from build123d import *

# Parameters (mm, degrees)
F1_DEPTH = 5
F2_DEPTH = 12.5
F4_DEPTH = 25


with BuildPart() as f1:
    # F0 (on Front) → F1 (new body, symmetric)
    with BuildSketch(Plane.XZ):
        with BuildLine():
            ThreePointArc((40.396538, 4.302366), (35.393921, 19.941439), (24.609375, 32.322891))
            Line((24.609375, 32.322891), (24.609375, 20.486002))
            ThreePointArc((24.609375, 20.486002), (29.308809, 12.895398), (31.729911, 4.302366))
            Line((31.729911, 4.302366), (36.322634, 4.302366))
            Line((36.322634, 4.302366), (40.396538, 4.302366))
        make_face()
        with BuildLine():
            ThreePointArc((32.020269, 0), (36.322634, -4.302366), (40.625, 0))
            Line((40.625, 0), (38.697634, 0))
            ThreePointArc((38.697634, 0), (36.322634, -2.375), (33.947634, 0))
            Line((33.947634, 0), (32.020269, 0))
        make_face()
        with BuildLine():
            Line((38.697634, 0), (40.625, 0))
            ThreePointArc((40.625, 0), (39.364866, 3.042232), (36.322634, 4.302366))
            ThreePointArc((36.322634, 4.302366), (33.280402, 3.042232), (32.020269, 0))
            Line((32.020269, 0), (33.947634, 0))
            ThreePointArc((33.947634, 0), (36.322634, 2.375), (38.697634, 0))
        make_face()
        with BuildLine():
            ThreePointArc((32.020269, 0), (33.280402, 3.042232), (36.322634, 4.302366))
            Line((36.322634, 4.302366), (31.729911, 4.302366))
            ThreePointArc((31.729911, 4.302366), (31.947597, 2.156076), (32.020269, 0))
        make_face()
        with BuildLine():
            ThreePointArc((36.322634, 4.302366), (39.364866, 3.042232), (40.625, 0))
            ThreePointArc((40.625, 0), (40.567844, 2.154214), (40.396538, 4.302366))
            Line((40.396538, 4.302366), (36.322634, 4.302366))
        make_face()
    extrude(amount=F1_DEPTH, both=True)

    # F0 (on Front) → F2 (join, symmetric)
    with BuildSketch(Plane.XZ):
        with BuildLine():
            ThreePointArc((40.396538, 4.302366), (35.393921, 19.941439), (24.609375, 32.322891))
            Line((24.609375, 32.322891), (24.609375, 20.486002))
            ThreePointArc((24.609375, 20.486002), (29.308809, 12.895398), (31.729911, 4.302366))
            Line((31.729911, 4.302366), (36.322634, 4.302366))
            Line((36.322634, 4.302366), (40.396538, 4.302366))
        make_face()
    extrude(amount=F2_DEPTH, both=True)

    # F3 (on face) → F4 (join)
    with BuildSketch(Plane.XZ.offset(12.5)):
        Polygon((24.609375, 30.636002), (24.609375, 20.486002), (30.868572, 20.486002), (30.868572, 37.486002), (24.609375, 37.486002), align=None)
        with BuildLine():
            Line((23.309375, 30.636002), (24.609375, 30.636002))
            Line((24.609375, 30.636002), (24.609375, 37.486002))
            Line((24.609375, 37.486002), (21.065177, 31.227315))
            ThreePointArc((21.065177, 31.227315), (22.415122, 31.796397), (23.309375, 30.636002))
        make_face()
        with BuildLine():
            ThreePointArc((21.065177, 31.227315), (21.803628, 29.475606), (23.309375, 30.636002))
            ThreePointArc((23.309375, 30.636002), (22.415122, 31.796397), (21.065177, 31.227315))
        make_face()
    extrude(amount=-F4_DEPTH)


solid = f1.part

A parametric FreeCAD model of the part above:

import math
import FreeCAD as App
import Part
import Sketcher
Q = App.Units.Quantity

doc = App.newDocument("Part")
body = doc.addObject("PartDesign::Body", "Body")

# Sketch on XZ plane
sketch1 = body.newObject("Sketcher::SketchObject", "Sketch")
sketch1.AttachmentSupport = (doc.getObject("XZ_Plane"), [""])
sketch1.MapMode = "FlatFace"
sketch1.addGeometry(Part.ArcOfCircle(Part.Circle(App.Vector(0.000001, 0, 0), App.Vector(0, 0, 1), 40.624999), math.radians(6.079275), math.radians(52.715785)), False)
sketch1.addGeometry(Part.LineSegment(App.Vector(24.609375, 32.322891, 0), App.Vector(24.609375, 20.486002, 0)), False)
sketch1.addGeometry(Part.ArcOfCircle(Part.Circle(App.Vector(-0.000013, -0.000006, 0), App.Vector(0, 0, 1), 32.020283), math.radians(7.721842), math.radians(39.775582)), False)
sketch1.addGeometry(Part.ArcOfCircle(Part.Circle(App.Vector(0.000012, -0.000002, 0), App.Vector(0, 0, 1), 32.020257), math.radians(0.000003), math.radians(7.721841)), False)
sketch1.addGeometry(Part.ArcOfCircle(Part.Circle(App.Vector(36.322634, 0, 0), App.Vector(0, 0, 1), 4.302365), math.radians(179.999993), math.radians(360.000007)), False)
sketch1.addGeometry(Part.ArcOfCircle(Part.Circle(App.Vector(-0.000223, -0.000011, 0), App.Vector(0, 0, 1), 40.625223), math.radians(0.000015), math.radians(6.079257)), False)
sketch1.addGeometry(Part.Circle(App.Vector(36.322634, 0, 0), App.Vector(0, 0, 1), 2.375), False)
sketch1.addConstraint(Sketcher.Constraint("Coincident", 0, 2, 1, 1))
sketch1.addConstraint(Sketcher.Constraint("Coincident", 1, 2, 2, 2))
sketch1.addConstraint(Sketcher.Constraint("Coincident", 2, 1, 3, 2))
sketch1.addConstraint(Sketcher.Constraint("Coincident", 3, 1, 4, 1))
sketch1.addConstraint(Sketcher.Constraint("Coincident", 4, 2, 5, 1))
sketch1.addConstraint(Sketcher.Constraint("Coincident", 5, 2, 0, 1))
sketch1.addConstraint(Sketcher.Constraint("Vertical", 1))
sketch1.addConstraint(Sketcher.Constraint("Coincident", 0, 3, -1, 1))
sketch1.addConstraint(Sketcher.Constraint("Coincident", 6, 3, 4, 3))
sketch1.addConstraint(Sketcher.Constraint("PointOnObject", 3, 3, -1))
sketch1.addConstraint(Sketcher.Constraint("PointOnObject", 4, 3, -1))
sketch1.addConstraint(Sketcher.Constraint("PointOnObject", 3, 1, -1))
sketch1.addConstraint(Sketcher.Constraint("PointOnObject", 4, 2, -1))
sketch1.addConstraint(Sketcher.Constraint("Diameter", 6, Q("4.75 mm")))
sketch1.addConstraint(Sketcher.Constraint("Radius", 0, Q("40.624999 mm")))
sketch1.addConstraint(Sketcher.Constraint("DistanceY", -1, 1, 1, 2, Q("20.486002 mm")))
sketch1.addConstraint(Sketcher.Constraint("DistanceX", -1, 1, 4, 2, Q("40.625 mm")))
sketch1.addConstraint(Sketcher.Constraint("Radius", 2, Q("32.020283 mm")))
sketch1.addConstraint(Sketcher.Constraint("Radius", 3, Q("32.020257 mm")))
sketch1.addConstraint(Sketcher.Constraint("Radius", 4, Q("4.302365 mm")))
sketch1.addConstraint(Sketcher.Constraint("Radius", 5, Q("40.625223 mm")))
sketch1.addConstraint(Sketcher.Constraint("DistanceY", 1, 2, 1, 1, Q("11.836889 mm")))
sketch1.addConstraint(Sketcher.Constraint("DistanceX", 3, 3, 2, 1, Q("31.729899 mm")))
sketch1.addConstraint(Sketcher.Constraint("DistanceX", -1, 1, 5, 2, Q("40.396538 mm")))
pad1 = body.newObject("PartDesign::Pad", "Pad")
pad1.Profile = sketch1
pad1.Length = 10
pad1.Midplane = True

# Sketch on XZ plane
sketch2 = body.newObject("Sketcher::SketchObject", "Sketch001")
sketch2.AttachmentSupport = (doc.getObject("XZ_Plane"), [""])
sketch2.MapMode = "FlatFace"
sketch2.addGeometry(Part.ArcOfCircle(Part.Circle(App.Vector(0.000001, 0, 0), App.Vector(0, 0, 1), 40.624999), math.radians(6.079275), math.radians(52.715785)), False)
sketch2.addGeometry(Part.LineSegment(App.Vector(24.609375, 32.322891, 0), App.Vector(24.609375, 20.486002, 0)), False)
sketch2.addGeometry(Part.ArcOfCircle(Part.Circle(App.Vector(-0.000013, -0.000006, 0), App.Vector(0, 0, 1), 32.020283), math.radians(7.721842), math.radians(39.775582)), False)
sketch2.addGeometry(Part.LineSegment(App.Vector(31.729911, 4.302366, 0), App.Vector(40.396538, 4.302366, 0)), False)
sketch2.addConstraint(Sketcher.Constraint("Coincident", 0, 2, 1, 1))
sketch2.addConstraint(Sketcher.Constraint("Coincident", 1, 2, 2, 2))
sketch2.addConstraint(Sketcher.Constraint("Coincident", 2, 1, 3, 1))
sketch2.addConstraint(Sketcher.Constraint("Coincident", 3, 2, 0, 1))
sketch2.addConstraint(Sketcher.Constraint("Vertical", 1))
sketch2.addConstraint(Sketcher.Constraint("Horizontal", 3))
sketch2.addConstraint(Sketcher.Constraint("Coincident", 0, 3, -1, 1))
sketch2.addConstraint(Sketcher.Constraint("Radius", 0, Q("40.624999 mm")))
sketch2.addConstraint(Sketcher.Constraint("DistanceY", -1, 1, 1, 2, Q("20.486002 mm")))
sketch2.addConstraint(Sketcher.Constraint("Radius", 2, Q("32.020283 mm")))
sketch2.addConstraint(Sketcher.Constraint("DistanceY", 1, 2, 1, 1, Q("11.836889 mm")))
sketch2.addConstraint(Sketcher.Constraint("DistanceX", 3, 1, 3, 2, Q("8.666627 mm")))
sketch2.addConstraint(Sketcher.Constraint("DistanceX", -1, 1, 2, 1, Q("31.729911 mm")))
pad2 = body.newObject("PartDesign::Pad", "Pad001")
pad2.Profile = sketch2
pad2.Length = 25
pad2.Midplane = True

# Sketch on XZ plane
sketch3 = body.newObject("Sketcher::SketchObject", "Sketch002")
sketch3.AttachmentSupport = (doc.getObject("XZ_Plane"), [""])
sketch3.MapMode = "FlatFace"
sketch3.AttachmentOffset = App.Placement(App.Vector(0, 0, 12.5), App.Rotation())
sketch3.addGeometry(Part.LineSegment(App.Vector(24.609375, 20.486002, 0), App.Vector(30.868572, 20.486002, 0)), False)
sketch3.addGeometry(Part.LineSegment(App.Vector(30.868572, 20.486002, 0), App.Vector(30.868572, 37.486002, 0)), False)
sketch3.addGeometry(Part.LineSegment(App.Vector(30.868572, 37.486002, 0), App.Vector(24.609375, 37.486002, 0)), False)
sketch3.addGeometry(Part.LineSegment(App.Vector(24.609375, 37.486002, 0), App.Vector(21.065177, 31.227315, 0)), False)
sketch3.addGeometry(Part.ArcOfCircle(Part.Circle(App.Vector(22.109375, 30.636002, 0), App.Vector(0, 0, 1), 1.2), math.radians(150.477802), math.radians(359.999996)), False)
sketch3.addGeometry(Part.LineSegment(App.Vector(23.309375, 30.636002, 0), App.Vector(24.609375, 30.636002, 0)), False)
sketch3.addGeometry(Part.LineSegment(App.Vector(24.609375, 30.636002, 0), App.Vector(24.609375, 20.486002, 0)), False)
sketch3.addConstraint(Sketcher.Constraint("Coincident", 0, 2, 1, 1))
sketch3.addConstraint(Sketcher.Constraint("Coincident", 1, 2, 2, 1))
sketch3.addConstraint(Sketcher.Constraint("Coincident", 2, 2, 3, 1))
sketch3.addConstraint(Sketcher.Constraint("Tangent", 3, 2, 4, 1))
sketch3.addConstraint(Sketcher.Constraint("Coincident", 4, 2, 5, 1))
sketch3.addConstraint(Sketcher.Constraint("Coincident", 5, 2, 6, 1))
sketch3.addConstraint(Sketcher.Constraint("Coincident", 6, 2, 0, 1))
sketch3.addConstraint(Sketcher.Constraint("Horizontal", 0))
sketch3.addConstraint(Sketcher.Constraint("Vertical", 1))
sketch3.addConstraint(Sketcher.Constraint("Horizontal", 2))
sketch3.addConstraint(Sketcher.Constraint("Horizontal", 5))
sketch3.addConstraint(Sketcher.Constraint("Vertical", 6))
sketch3.addConstraint(Sketcher.Constraint("Vertical", 2, 2, 5, 2))
sketch3.addConstraint(Sketcher.Constraint("Radius", 4, Q("1.2 mm")))
sketch3.addConstraint(Sketcher.Constraint("DistanceY", 1, 1, 1, 2, Q("17 mm")))
sketch3.addConstraint(Sketcher.Constraint("DistanceX", 5, 1, 5, 2, Q("1.3 mm")))
sketch3.addConstraint(Sketcher.Constraint("DistanceY", 6, 2, 6, 1, Q("10.15 mm")))
sketch3.addConstraint(Sketcher.Constraint("DistanceY", 0, 2, 4, 3, Q("10.15 mm")))
sketch3.addConstraint(Sketcher.Constraint("DistanceY", -1, 1, 0, 2, Q("20.486002 mm")))
sketch3.addConstraint(Sketcher.Constraint("DistanceX", 0, 1, 0, 2, Q("6.259197 mm")))
sketch3.addConstraint(Sketcher.Constraint("DistanceX", -1, 1, 4, 3, Q("22.109375 mm")))
pad3 = body.newObject("PartDesign::Pad", "Pad002")
pad3.Profile = sketch3
pad3.Length = 25
pad3.Reversed = True

doc.recompute()
